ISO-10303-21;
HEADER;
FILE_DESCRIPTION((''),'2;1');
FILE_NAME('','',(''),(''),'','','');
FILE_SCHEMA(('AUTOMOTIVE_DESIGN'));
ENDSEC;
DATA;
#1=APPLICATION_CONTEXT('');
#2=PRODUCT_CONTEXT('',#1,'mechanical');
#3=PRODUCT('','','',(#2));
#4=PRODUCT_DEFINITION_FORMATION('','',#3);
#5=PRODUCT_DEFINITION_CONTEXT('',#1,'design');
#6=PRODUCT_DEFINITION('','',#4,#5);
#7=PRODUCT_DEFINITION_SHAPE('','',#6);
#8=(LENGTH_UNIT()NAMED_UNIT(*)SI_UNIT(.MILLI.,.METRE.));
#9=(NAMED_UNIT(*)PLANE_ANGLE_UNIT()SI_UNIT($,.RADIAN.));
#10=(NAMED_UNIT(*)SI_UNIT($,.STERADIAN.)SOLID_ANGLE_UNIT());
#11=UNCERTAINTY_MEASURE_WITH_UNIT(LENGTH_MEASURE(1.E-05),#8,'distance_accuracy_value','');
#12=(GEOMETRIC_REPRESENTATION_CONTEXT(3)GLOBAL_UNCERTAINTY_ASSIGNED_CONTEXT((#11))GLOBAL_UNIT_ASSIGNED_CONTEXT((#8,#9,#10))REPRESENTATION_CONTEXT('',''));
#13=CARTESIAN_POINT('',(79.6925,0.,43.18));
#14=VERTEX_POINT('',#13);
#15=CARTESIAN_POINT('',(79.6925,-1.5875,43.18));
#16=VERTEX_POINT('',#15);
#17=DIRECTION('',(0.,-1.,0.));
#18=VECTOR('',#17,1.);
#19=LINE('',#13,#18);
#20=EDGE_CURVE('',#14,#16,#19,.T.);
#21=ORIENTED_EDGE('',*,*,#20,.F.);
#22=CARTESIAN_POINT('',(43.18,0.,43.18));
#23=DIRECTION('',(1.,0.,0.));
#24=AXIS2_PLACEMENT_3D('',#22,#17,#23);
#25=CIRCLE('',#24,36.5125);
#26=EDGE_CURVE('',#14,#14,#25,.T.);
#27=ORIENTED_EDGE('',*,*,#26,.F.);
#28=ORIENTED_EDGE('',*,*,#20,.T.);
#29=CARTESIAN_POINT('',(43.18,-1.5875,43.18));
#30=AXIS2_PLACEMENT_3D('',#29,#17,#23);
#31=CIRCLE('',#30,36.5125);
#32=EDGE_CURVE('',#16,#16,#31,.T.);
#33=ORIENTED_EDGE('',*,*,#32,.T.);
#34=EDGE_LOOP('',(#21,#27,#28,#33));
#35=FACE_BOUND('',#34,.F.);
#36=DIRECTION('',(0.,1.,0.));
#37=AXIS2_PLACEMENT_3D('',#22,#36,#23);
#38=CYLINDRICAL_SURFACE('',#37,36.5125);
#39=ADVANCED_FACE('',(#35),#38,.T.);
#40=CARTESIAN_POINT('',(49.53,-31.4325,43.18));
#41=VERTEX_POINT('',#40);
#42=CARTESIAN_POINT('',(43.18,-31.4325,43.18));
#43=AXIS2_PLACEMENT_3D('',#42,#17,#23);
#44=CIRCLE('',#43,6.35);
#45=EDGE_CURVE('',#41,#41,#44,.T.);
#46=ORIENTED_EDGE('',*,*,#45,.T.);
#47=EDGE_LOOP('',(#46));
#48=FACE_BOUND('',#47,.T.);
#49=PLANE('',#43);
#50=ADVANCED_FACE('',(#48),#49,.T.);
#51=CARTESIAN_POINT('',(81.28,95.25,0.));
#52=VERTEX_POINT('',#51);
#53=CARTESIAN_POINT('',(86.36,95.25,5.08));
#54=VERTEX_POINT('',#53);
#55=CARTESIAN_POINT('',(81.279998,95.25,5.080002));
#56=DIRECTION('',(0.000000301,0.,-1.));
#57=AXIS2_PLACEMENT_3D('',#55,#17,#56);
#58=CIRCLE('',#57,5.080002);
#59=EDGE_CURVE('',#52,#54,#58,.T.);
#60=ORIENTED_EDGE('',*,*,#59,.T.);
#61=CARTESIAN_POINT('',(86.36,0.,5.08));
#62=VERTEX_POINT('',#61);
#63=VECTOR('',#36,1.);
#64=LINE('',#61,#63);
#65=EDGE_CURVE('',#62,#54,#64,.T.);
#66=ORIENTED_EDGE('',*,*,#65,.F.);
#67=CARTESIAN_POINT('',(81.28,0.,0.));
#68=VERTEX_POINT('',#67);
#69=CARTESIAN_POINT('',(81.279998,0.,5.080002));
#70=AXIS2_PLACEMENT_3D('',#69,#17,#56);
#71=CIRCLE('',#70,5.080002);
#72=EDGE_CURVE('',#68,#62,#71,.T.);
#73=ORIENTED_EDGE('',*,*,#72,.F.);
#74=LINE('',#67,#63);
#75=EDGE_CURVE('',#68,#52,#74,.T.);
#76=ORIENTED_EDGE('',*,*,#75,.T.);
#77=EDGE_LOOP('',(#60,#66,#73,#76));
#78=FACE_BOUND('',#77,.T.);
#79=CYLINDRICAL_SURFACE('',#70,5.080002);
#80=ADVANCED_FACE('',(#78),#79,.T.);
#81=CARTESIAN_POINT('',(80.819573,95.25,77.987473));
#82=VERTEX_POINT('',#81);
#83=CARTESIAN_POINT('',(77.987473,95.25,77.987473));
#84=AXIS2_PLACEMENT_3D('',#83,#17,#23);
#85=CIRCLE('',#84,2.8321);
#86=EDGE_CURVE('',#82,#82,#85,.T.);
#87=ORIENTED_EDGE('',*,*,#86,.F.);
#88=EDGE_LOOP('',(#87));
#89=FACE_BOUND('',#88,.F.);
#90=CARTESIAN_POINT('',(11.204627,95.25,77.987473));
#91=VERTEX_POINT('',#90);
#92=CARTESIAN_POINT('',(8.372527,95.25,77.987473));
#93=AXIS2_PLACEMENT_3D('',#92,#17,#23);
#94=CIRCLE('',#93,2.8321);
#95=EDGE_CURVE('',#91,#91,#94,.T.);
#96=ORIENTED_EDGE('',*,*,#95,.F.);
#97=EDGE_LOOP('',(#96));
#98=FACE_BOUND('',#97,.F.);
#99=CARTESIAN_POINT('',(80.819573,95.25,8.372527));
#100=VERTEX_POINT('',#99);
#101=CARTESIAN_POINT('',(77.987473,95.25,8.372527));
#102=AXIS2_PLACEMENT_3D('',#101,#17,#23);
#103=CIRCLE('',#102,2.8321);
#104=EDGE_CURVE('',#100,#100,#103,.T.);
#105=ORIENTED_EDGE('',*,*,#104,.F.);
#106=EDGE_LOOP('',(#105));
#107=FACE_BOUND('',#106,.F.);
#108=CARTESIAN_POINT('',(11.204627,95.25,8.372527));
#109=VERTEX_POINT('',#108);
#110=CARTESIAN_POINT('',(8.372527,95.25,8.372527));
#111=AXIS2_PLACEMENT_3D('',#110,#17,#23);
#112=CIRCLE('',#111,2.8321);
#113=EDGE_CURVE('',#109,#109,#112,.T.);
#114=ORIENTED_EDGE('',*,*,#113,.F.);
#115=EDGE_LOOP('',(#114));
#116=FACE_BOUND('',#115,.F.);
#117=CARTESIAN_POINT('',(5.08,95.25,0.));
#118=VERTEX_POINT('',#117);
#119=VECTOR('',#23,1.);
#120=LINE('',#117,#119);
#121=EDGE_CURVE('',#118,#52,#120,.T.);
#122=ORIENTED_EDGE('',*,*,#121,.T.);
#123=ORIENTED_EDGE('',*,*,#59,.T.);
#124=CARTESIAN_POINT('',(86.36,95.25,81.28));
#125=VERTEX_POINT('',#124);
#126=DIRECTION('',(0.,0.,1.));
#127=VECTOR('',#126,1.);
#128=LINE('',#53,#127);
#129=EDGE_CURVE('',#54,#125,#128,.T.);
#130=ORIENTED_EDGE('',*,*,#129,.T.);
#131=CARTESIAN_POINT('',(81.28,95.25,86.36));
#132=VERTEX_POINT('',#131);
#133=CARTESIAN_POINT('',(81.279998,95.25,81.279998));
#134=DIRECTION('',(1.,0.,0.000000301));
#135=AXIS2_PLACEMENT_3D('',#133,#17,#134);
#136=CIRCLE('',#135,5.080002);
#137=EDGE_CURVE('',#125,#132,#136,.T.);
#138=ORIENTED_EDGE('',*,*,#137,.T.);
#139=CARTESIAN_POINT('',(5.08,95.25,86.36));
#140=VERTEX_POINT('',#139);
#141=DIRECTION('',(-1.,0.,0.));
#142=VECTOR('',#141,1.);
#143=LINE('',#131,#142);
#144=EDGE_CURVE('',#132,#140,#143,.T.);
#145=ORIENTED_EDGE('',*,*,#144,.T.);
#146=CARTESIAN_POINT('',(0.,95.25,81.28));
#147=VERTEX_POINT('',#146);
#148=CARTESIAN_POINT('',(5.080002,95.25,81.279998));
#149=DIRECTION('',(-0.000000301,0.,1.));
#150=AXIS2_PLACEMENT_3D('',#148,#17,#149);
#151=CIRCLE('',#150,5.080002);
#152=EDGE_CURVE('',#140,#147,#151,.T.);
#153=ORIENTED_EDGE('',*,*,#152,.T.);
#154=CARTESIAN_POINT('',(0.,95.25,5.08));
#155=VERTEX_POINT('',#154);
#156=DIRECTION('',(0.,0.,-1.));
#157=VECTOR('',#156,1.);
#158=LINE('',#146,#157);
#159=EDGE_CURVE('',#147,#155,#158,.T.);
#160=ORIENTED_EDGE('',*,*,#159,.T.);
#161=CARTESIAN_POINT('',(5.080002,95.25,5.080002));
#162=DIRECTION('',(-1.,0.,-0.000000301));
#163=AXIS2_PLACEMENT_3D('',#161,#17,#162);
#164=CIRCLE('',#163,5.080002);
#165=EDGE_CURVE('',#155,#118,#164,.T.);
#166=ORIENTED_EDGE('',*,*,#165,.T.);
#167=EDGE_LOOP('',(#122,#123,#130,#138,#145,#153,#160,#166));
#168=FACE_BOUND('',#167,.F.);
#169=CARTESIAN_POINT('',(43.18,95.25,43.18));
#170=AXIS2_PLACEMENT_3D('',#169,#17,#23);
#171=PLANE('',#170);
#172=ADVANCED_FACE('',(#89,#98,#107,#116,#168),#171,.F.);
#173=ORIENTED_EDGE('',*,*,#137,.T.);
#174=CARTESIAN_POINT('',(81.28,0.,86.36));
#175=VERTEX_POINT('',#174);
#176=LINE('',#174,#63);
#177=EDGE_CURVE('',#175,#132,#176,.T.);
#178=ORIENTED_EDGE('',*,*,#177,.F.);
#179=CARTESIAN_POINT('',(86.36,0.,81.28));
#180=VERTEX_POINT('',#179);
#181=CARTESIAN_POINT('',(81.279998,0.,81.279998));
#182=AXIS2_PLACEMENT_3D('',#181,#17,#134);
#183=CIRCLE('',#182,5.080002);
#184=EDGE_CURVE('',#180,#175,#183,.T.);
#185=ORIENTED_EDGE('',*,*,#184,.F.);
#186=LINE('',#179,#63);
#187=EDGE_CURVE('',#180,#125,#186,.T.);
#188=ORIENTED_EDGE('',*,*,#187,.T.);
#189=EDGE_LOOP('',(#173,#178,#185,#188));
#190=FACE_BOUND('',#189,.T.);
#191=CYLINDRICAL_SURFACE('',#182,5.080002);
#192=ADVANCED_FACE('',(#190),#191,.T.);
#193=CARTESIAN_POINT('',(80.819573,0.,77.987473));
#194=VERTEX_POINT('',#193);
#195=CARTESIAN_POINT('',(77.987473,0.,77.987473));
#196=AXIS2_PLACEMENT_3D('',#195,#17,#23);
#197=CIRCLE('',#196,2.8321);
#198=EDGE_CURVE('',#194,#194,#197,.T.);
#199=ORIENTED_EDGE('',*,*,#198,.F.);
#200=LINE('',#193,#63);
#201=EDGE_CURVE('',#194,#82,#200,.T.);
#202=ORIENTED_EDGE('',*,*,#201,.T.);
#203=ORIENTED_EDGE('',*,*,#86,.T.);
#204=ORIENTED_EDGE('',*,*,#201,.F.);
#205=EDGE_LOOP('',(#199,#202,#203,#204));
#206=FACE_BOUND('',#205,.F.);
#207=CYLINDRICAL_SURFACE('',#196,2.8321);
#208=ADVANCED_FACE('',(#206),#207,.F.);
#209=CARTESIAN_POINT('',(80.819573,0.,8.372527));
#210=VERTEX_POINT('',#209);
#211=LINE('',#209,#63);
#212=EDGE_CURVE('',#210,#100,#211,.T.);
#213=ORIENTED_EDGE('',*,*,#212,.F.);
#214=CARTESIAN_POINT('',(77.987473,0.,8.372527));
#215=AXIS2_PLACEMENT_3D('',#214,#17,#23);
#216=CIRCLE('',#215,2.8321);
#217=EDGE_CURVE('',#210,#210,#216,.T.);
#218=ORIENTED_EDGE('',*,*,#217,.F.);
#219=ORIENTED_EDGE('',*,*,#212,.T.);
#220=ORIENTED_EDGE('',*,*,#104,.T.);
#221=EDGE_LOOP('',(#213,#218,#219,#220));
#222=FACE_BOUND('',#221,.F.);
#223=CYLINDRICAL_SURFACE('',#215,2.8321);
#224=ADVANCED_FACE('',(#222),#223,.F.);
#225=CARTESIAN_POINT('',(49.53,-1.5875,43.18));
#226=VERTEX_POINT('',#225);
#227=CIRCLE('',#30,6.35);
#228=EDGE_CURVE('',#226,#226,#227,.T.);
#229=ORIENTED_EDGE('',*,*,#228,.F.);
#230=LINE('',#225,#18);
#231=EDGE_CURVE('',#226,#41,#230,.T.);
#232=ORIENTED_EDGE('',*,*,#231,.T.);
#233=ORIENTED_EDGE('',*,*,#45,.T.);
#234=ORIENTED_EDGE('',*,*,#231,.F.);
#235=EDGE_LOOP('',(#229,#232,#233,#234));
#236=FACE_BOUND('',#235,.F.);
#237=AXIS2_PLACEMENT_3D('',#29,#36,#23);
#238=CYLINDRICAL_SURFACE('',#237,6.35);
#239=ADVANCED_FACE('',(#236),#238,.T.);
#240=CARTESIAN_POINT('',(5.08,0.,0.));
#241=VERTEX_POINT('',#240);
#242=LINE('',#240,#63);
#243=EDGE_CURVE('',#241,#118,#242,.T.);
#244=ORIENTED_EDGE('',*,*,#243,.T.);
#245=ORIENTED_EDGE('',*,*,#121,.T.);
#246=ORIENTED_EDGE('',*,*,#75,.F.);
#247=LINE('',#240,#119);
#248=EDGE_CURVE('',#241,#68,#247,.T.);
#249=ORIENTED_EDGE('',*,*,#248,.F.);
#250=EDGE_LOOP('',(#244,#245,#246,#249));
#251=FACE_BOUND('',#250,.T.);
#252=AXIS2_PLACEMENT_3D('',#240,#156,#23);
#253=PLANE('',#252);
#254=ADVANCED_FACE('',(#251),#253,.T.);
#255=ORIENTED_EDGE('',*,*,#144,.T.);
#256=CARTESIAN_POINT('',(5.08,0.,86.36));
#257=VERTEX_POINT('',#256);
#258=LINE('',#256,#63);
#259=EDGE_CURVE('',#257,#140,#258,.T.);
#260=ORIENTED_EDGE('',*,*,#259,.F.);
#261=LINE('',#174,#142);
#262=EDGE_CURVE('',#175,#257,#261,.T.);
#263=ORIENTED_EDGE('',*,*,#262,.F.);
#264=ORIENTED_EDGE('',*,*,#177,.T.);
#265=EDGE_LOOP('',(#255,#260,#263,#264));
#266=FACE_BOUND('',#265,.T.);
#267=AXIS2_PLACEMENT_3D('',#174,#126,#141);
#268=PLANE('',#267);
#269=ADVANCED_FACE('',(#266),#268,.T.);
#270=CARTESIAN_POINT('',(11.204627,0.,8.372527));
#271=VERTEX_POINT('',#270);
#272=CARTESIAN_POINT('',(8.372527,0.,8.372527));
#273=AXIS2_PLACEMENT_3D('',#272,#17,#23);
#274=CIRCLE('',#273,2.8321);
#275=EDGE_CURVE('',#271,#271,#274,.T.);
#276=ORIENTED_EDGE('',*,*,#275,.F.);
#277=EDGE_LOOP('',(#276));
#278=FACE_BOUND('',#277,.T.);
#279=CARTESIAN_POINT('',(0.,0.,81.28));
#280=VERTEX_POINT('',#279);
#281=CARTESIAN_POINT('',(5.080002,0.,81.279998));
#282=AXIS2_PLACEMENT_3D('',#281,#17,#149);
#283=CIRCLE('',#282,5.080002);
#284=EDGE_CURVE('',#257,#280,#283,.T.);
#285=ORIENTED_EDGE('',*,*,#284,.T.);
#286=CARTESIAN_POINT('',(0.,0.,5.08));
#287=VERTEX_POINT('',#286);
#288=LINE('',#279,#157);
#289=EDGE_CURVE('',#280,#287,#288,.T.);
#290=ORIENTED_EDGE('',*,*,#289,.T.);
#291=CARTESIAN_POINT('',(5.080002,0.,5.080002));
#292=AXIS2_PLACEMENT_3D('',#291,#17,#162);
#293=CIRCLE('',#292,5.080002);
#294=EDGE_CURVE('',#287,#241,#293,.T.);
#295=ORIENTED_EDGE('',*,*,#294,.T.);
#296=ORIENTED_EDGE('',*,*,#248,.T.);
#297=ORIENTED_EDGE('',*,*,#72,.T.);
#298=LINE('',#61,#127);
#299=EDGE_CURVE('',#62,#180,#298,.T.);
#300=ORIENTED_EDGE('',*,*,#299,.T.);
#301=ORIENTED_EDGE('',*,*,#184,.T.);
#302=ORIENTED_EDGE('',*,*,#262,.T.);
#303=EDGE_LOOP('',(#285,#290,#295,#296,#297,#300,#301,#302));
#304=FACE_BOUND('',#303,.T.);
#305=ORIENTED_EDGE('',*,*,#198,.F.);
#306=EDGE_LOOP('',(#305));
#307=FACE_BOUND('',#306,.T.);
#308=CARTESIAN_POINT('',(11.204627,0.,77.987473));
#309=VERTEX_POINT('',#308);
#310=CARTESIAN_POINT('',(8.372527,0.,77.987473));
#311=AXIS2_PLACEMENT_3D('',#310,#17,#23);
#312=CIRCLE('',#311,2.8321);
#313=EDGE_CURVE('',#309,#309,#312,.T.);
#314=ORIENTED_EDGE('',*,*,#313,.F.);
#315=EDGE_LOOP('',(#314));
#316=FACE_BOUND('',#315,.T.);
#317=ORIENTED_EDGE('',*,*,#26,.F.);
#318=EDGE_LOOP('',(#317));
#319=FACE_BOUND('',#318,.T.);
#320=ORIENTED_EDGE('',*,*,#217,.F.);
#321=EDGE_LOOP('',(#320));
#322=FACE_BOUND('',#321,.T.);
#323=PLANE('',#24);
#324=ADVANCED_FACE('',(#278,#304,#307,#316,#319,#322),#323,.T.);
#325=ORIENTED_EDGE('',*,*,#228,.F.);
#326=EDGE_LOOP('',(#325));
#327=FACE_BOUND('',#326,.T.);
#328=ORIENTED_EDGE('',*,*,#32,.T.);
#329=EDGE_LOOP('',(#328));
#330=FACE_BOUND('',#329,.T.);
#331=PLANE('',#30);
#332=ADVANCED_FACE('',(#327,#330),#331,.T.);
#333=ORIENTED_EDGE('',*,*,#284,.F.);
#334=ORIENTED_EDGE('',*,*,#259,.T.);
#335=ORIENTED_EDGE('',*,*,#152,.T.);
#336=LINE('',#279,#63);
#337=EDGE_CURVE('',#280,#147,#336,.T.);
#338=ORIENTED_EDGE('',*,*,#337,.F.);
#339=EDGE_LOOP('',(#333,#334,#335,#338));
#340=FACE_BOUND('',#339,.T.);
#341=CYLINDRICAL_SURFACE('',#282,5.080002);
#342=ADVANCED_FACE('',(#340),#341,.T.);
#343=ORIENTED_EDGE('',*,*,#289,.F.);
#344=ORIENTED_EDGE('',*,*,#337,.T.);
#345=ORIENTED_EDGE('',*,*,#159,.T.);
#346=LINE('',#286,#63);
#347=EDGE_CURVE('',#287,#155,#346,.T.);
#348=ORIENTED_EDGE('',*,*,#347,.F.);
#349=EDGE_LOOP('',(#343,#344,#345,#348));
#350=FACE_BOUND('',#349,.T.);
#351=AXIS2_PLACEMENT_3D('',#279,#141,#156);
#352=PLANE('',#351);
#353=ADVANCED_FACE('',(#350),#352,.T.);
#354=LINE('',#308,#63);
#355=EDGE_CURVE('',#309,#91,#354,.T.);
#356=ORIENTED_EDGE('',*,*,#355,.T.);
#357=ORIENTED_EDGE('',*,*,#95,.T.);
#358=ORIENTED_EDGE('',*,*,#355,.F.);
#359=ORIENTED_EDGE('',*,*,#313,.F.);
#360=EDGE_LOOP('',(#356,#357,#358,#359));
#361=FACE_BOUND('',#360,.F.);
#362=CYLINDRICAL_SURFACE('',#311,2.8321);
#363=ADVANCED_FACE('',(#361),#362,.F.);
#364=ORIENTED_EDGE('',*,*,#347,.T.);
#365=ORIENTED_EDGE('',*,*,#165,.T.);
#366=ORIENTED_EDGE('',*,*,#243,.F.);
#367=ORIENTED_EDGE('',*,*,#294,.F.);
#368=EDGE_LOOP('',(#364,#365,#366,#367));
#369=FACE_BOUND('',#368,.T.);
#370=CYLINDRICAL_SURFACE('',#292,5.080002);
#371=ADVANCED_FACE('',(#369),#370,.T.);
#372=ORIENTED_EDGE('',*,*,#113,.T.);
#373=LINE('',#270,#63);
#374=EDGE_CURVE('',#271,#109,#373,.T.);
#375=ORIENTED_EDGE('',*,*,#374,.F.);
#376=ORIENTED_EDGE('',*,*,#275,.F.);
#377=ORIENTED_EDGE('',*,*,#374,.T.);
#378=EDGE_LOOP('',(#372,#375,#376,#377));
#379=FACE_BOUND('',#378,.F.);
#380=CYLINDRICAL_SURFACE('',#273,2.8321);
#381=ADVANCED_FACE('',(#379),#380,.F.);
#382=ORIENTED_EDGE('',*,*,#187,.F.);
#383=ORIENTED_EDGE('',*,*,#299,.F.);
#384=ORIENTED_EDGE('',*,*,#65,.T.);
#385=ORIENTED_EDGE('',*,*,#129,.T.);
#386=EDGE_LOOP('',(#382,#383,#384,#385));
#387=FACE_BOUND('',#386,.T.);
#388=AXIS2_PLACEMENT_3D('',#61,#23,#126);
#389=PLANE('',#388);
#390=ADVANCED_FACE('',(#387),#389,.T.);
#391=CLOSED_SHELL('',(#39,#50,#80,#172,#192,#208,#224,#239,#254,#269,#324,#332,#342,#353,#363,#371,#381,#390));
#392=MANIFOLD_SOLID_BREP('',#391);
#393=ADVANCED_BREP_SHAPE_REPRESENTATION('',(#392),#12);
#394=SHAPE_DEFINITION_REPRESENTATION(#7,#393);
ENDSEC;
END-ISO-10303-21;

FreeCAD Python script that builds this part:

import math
import FreeCAD as App
import Part
import Sketcher

V = App.Vector
Q = App.Units.Quantity

doc = App.newDocument("Part")
body = doc.addObject("PartDesign::Body", "Body")

# Sketch on XZ plane
sketch1 = body.newObject("Sketcher::SketchObject", "Sketch")
sketch1.AttachmentSupport = (doc.getObject("XZ_Plane"), [""])
sketch1.MapMode = "FlatFace"
sketch1.addGeometry(Part.ArcOfCircle(Part.Circle(V(5.080002, 5.080002, 0), V(0, 0, 1), 5.080002), math.radians(-179.999983), math.radians(-90.000017)), False)
sketch1.addGeometry(Part.LineSegment(V(5.08, 0, 0), V(81.28, 0, 0)), False)
sketch1.addGeometry(Part.ArcOfCircle(Part.Circle(V(81.279998, 5.080002, 0), V(0, 0, 1), 5.080002), math.radians(-89.999983), math.radians(-0.000017)), False)
sketch1.addGeometry(Part.LineSegment(V(86.36, 5.08, 0), V(86.36, 81.28, 0)), False)
sketch1.addGeometry(Part.ArcOfCircle(Part.Circle(V(81.279998, 81.279998, 0), V(0, 0, 1), 5.080002), math.radians(0.000017), math.radians(89.999983)), False)
sketch1.addGeometry(Part.LineSegment(V(81.28, 86.36, 0), V(5.08, 86.36, 0)), False)
sketch1.addGeometry(Part.ArcOfCircle(Part.Circle(V(5.080002, 81.279998, 0), V(0, 0, 1), 5.080002), math.radians(90.000017), math.radians(179.999983)), False)
sketch1.addGeometry(Part.LineSegment(V(0, 81.28, 0), V(0, 5.08, 0)), False)
sketch1.addGeometry(Part.Circle(V(8.372527, 8.372527, 0), V(0, 0, 1), 2.8321), False)
sketch1.addGeometry(Part.Circle(V(77.987473, 8.372527, 0), V(0, 0, 1), 2.8321), False)
sketch1.addGeometry(Part.Circle(V(8.372527, 77.987473, 0), V(0, 0, 1), 2.8321), False)
sketch1.addGeometry(Part.Circle(V(77.987473, 77.987473, 0), V(0, 0, 1), 2.8321), False)
sketch1.addConstraint(Sketcher.Constraint("Tangent", 0, 2, 1, 1))
sketch1.addConstraint(Sketcher.Constraint("Tangent", 1, 2, 2, 1))
sketch1.addConstraint(Sketcher.Constraint("Tangent", 2, 2, 3, 1))
sketch1.addConstraint(Sketcher.Constraint("Tangent", 3, 2, 4, 1))
sketch1.addConstraint(Sketcher.Constraint("Tangent", 4, 2, 5, 1))
sketch1.addConstraint(Sketcher.Constraint("Tangent", 5, 2, 6, 1))
sketch1.addConstraint(Sketcher.Constraint("Tangent", 6, 2, 7, 1))
sketch1.addConstraint(Sketcher.Constraint("Tangent", 7, 2, 0, 1))
sketch1.addConstraint(Sketcher.Constraint("Horizontal", 1))
sketch1.addConstraint(Sketcher.Constraint("Vertical", 3))
sketch1.addConstraint(Sketcher.Constraint("Horizontal", 5))
sketch1.addConstraint(Sketcher.Constraint("Vertical", 7))
sketch1.addConstraint(Sketcher.Constraint("Equal", 0, 2))
sketch1.addConstraint(Sketcher.Constraint("Equal", 2, 4))
sketch1.addConstraint(Sketcher.Constraint("Equal", 4, 6))
sketch1.addConstraint(Sketcher.Constraint("Equal", 8, 9))
sketch1.addConstraint(Sketcher.Constraint("Equal", 9, 10))
sketch1.addConstraint(Sketcher.Constraint("Equal", 10, 11))
sketch1.addConstraint(Sketcher.Constraint("PointOnObject", 0, 2, -1))
sketch1.addConstraint(Sketcher.Constraint("PointOnObject", 6, 2, -2))
sketch1.addConstraint(Sketcher.Constraint("Horizontal", 8, 3, 9, 3))
sketch1.addConstraint(Sketcher.Constraint("Horizontal", 10, 3, 11, 3))
sketch1.addConstraint(Sketcher.Constraint("Vertical", 8, 3, 10, 3))
sketch1.addConstraint(Sketcher.Constraint("Vertical", 9, 3, 11, 3))
sketch1.addConstraint(Sketcher.Constraint("Equal", 5, 3))
sketch1.addConstraint(Sketcher.Constraint("Radius", 0, Q("0.2000001 in")))
sketch1.addConstraint(Sketcher.Constraint("DistanceX", 1, 1, 1, 2, Q("3 in")))
sketch1.addConstraint(Sketcher.Constraint("Diameter", 8, Q("0.223 in")))
sketch1.addConstraint(Sketcher.Constraint("DistanceX", 8, 3, 2, 3, 72.907471))
sketch1.addConstraint(Sketcher.Constraint("DistanceY", 8, 3, 6, 3, 72.907471))
sketch1.addConstraint(Sketcher.Constraint("DistanceX", 0, 3, 9, 3, 72.907471))
sketch1.addConstraint(Sketcher.Constraint("DistanceY", 0, 3, 10, 3, 72.907471))
pad1 = body.newObject("PartDesign::Pad", "Pad")
pad1.Profile = sketch1
pad1.Length = Q("3.75 in")
pad1.Reversed = True

# Sketch on XZ plane
sketch2 = body.newObject("Sketcher::SketchObject", "Sketch001")
sketch2.AttachmentSupport = (doc.getObject("XZ_Plane"), [""])
sketch2.MapMode = "FlatFace"
sketch2.addGeometry(Part.Circle(V(43.18, 43.18, 0), V(0, 0, 1), 36.5125), False)
sketch2.addConstraint(Sketcher.Constraint("Diameter", 0, Q("2.875 in")))
sketch2.addConstraint(Sketcher.Constraint("DistanceX", -1, 1, 0, 3, Q("1.7 in")))
sketch2.addConstraint(Sketcher.Constraint("DistanceY", -1, 1, 0, 3, Q("1.7 in")))
pad2 = body.newObject("PartDesign::Pad", "Pad001")
pad2.Profile = sketch2
pad2.Length = Q("0.0625 in")

# Sketch on XZ plane
sketch3 = body.newObject("Sketcher::SketchObject", "Sketch002")
sketch3.AttachmentSupport = (doc.getObject("XZ_Plane"), [""])
sketch3.MapMode = "FlatFace"
sketch3.AttachmentOffset = App.Placement(V(0, 0, 0.0625 * 25.4), App.Rotation())
sketch3.addGeometry(Part.Circle(V(43.18, 43.18, 0), V(0, 0, 1), 6.35), False)
sketch3.addConstraint(Sketcher.Constraint("Diameter", 0, Q("0.5 in")))
sketch3.addConstraint(Sketcher.Constraint("DistanceX", -1, 1, 0, 3, Q("1.7 in")))
sketch3.addConstraint(Sketcher.Constraint("DistanceY", -1, 1, 0, 3, Q("1.7 in")))
pad3 = body.newObject("PartDesign::Pad", "Pad002")
pad3.Profile = sketch3
pad3.Length = Q("1.175 in")

doc.recompute()
